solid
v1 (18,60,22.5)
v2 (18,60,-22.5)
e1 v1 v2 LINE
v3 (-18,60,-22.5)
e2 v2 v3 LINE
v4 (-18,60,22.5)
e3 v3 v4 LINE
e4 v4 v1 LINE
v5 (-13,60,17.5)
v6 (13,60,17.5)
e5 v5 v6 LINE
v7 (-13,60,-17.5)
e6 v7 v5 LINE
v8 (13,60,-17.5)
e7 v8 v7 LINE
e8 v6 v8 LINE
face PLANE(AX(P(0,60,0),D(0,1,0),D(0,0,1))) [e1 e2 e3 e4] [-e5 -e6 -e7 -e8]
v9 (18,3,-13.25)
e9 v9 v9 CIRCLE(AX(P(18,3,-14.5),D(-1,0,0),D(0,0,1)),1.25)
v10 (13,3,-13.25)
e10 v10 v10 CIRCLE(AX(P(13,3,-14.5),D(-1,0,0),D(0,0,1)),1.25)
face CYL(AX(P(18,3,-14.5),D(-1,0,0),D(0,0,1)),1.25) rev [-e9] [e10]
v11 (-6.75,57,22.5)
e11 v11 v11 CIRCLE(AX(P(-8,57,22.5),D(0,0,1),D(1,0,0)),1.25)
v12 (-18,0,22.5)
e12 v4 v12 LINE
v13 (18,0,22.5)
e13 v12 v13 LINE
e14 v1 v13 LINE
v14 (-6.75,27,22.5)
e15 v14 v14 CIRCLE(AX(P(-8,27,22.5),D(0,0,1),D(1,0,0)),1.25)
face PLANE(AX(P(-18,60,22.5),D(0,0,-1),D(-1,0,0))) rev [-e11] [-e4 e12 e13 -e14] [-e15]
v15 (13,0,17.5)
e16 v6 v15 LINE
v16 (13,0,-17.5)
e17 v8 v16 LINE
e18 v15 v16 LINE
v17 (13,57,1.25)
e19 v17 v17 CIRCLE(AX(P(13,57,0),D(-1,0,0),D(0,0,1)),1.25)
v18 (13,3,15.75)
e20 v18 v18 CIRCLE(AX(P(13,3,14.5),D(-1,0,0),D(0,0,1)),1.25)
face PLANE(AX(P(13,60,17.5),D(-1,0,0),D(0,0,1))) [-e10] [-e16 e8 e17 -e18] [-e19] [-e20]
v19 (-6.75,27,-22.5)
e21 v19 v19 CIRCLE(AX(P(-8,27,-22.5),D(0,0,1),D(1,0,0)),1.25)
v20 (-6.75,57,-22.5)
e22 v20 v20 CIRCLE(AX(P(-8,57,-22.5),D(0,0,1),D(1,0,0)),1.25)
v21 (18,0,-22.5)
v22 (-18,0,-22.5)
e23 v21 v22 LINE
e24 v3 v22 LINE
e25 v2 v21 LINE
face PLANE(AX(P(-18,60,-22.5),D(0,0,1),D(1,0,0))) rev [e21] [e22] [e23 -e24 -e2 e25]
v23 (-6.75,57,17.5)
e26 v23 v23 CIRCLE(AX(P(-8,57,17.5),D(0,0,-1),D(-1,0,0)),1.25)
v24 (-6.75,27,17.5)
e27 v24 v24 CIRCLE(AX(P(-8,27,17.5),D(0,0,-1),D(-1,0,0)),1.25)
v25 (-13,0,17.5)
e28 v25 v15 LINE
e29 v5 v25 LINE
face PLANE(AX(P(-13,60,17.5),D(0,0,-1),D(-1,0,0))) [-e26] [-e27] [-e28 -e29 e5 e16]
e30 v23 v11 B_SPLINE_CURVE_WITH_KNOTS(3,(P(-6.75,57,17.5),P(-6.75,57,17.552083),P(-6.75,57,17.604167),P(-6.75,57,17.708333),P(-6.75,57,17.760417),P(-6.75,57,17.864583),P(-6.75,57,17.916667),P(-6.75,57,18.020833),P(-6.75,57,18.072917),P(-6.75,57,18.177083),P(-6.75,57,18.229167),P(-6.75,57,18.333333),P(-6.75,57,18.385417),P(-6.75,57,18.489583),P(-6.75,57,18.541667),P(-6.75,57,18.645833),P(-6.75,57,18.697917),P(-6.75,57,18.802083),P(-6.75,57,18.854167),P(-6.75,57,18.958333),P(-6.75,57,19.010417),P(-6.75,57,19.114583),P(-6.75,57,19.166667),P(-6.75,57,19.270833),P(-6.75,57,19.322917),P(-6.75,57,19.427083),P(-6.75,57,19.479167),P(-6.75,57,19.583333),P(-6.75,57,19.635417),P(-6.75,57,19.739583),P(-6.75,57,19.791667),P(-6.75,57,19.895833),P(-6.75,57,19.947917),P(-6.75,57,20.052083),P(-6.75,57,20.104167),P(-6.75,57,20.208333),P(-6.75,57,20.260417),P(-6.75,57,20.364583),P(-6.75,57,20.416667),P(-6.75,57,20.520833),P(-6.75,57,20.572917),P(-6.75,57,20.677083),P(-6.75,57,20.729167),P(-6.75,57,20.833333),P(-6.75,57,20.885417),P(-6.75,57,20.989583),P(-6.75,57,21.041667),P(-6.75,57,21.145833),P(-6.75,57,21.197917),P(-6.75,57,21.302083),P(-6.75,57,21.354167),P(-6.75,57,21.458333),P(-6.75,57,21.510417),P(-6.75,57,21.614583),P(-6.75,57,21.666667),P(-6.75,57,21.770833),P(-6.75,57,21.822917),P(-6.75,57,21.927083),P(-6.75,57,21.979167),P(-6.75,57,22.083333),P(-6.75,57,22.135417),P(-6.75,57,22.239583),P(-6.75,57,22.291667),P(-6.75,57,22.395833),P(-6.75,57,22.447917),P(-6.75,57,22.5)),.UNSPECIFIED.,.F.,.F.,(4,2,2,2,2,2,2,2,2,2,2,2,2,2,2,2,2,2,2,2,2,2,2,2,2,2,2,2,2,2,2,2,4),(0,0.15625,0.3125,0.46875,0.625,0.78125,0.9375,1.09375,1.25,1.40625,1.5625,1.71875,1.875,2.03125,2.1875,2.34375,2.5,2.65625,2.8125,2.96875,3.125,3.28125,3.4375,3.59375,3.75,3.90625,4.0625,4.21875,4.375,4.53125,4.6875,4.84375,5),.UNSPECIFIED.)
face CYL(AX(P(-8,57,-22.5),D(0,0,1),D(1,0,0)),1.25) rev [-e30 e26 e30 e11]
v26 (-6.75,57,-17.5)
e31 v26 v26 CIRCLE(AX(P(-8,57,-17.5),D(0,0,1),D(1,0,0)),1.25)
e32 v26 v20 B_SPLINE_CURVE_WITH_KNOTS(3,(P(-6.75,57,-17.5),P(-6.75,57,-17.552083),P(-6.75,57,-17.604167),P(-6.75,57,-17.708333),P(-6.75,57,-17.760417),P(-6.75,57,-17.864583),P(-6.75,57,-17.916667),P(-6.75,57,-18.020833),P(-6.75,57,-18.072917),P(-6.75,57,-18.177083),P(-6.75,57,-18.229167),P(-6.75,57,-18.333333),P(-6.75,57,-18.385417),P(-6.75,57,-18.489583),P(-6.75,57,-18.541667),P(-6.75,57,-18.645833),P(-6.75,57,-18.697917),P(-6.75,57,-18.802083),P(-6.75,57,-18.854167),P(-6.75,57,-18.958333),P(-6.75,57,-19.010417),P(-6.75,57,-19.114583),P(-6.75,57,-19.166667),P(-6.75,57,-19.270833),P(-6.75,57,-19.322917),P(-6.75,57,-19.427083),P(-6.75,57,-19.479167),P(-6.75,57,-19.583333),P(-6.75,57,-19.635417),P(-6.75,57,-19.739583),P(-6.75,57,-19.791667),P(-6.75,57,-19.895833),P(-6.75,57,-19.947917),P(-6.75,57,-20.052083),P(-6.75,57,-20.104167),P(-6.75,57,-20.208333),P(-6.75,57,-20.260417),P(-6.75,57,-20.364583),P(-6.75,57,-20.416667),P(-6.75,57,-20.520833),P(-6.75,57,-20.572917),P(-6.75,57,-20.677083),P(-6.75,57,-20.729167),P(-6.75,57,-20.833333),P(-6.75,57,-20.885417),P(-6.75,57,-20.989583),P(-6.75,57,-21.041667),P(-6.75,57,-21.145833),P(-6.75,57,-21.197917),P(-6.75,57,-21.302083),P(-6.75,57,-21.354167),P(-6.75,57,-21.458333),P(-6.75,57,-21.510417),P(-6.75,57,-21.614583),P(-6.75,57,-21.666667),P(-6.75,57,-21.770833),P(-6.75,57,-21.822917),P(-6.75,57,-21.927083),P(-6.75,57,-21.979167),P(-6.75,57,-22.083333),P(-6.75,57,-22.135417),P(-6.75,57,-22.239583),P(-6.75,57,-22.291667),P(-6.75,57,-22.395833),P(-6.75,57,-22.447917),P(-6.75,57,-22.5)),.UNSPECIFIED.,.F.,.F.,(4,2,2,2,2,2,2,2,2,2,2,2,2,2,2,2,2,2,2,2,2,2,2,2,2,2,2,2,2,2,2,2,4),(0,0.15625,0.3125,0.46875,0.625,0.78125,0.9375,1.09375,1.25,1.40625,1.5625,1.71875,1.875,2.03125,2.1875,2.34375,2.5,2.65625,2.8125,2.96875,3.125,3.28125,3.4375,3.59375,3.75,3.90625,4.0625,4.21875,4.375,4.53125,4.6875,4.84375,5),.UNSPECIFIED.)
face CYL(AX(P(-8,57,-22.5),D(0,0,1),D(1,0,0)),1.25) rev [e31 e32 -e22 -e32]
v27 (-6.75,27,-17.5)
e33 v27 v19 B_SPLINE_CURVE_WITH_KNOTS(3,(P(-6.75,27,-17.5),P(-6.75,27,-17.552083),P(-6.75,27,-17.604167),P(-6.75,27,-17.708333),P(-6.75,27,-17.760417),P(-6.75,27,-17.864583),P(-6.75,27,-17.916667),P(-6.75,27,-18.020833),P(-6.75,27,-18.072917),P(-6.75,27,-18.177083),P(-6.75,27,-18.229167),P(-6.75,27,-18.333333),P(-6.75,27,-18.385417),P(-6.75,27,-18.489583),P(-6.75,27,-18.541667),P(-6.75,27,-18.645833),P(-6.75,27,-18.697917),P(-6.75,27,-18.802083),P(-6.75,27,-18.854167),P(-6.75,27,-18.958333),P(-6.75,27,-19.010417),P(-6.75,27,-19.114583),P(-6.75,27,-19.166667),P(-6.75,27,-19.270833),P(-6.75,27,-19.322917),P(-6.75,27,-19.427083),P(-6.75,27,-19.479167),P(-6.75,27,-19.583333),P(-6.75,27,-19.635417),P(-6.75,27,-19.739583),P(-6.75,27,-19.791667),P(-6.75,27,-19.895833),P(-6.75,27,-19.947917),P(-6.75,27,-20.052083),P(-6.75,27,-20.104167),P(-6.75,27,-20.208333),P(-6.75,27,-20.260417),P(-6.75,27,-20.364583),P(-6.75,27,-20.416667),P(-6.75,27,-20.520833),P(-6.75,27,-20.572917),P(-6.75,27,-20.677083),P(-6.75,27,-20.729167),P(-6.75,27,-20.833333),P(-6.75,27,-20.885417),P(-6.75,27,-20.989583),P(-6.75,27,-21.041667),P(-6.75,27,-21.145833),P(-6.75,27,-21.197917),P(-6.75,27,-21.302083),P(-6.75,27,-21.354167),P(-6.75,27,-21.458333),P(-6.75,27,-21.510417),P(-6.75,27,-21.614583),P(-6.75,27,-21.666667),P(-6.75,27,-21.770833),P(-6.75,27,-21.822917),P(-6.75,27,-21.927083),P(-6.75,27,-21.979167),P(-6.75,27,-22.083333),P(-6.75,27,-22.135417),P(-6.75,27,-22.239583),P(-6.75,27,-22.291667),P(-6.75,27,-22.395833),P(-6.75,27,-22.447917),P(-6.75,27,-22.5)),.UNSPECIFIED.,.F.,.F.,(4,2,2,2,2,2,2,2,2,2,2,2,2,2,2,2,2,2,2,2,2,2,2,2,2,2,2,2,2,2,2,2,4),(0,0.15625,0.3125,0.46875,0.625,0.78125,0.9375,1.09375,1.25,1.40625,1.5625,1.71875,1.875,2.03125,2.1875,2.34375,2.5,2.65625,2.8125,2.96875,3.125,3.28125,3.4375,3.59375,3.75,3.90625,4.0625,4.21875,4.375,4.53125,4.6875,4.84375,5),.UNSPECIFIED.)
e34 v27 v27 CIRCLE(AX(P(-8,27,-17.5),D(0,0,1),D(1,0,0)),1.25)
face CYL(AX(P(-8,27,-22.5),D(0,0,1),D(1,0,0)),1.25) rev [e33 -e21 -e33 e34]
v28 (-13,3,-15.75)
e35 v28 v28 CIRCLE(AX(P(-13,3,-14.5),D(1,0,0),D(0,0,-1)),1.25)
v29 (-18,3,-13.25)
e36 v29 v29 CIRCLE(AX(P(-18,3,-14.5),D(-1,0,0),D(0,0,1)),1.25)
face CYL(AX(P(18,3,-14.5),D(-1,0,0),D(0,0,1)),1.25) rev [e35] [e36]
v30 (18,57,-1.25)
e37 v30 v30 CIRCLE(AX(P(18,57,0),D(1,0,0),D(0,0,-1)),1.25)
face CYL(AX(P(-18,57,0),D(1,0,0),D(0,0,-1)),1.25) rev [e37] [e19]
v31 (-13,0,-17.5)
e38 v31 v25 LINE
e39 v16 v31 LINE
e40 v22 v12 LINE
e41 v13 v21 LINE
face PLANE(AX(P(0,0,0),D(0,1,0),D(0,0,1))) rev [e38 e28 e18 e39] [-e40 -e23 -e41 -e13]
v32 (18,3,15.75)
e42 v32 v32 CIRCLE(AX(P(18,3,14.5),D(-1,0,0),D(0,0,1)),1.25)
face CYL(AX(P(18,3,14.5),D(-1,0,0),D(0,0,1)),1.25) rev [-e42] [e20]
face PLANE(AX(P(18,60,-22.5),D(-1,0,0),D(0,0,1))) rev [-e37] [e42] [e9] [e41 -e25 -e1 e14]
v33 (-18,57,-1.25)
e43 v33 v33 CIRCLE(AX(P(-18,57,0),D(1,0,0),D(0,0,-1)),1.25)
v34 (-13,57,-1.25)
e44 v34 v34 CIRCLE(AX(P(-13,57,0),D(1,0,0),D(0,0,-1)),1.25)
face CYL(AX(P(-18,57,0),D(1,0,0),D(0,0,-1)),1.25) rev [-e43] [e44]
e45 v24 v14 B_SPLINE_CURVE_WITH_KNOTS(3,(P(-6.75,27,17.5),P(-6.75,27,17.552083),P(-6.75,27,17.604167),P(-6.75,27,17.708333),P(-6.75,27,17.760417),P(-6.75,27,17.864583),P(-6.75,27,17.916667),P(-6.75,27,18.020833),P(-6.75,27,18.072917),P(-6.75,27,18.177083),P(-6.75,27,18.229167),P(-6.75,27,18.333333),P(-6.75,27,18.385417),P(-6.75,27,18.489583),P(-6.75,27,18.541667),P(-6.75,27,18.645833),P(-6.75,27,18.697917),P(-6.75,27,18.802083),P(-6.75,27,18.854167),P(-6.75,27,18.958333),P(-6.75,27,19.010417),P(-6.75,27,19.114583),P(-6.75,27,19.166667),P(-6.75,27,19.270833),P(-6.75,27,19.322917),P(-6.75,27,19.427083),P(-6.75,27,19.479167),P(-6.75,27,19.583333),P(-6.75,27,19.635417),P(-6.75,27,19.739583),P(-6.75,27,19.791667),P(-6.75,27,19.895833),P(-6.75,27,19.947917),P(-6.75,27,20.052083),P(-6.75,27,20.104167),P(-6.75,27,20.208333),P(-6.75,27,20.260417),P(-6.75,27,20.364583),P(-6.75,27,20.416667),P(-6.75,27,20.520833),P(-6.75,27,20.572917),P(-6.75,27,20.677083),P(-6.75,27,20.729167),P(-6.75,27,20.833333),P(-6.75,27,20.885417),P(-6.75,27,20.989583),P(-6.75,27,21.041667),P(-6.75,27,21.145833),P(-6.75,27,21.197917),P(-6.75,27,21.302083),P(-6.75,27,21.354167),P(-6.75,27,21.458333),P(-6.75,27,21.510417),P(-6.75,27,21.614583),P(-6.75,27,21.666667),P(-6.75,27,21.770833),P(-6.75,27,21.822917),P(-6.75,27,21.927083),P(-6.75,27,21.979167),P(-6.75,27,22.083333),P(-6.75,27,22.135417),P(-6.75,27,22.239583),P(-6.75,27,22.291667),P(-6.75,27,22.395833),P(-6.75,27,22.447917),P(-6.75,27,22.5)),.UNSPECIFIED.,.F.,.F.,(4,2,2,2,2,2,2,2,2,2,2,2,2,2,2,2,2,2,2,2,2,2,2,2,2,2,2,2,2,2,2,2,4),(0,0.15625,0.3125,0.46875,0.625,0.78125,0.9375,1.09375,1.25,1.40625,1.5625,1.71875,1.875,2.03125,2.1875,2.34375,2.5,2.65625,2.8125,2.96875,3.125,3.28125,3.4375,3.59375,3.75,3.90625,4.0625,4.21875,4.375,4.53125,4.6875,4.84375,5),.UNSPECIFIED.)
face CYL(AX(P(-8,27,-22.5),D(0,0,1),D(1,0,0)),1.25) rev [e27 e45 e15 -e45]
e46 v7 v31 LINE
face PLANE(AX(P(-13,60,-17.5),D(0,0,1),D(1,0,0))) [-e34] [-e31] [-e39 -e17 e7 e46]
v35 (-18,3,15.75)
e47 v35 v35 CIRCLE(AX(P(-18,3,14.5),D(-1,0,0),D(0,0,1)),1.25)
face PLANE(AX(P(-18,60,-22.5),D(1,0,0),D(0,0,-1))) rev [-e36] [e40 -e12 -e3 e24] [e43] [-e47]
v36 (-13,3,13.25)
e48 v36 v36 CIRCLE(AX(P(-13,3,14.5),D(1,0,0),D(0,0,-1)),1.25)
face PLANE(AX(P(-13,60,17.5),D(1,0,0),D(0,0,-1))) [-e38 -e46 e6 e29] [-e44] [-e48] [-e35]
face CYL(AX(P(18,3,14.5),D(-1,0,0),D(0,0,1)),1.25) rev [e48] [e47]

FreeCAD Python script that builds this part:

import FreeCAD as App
import Part
import Sketcher
from FreeCAD import Vector

doc = App.newDocument("Part")
body = doc.addObject("PartDesign::Body", "Body")

sketch1 = body.newObject("Sketcher::SketchObject", "Sketch")
sketch1.AttachmentSupport = (doc.getObject("XZ_Plane"), [""])
sketch1.MapMode = "FlatFace"
sketch1.addGeometry([
    Part.LineSegment(Vector(-18, -22, 0), Vector(-18, 22, 0)),
    Part.LineSegment(Vector(-18, 22, 0), Vector(18, 22, 0)),
    Part.LineSegment(Vector(18, 22, 0), Vector(18, -22, 0)),
    Part.LineSegment(Vector(18, -22, 0), Vector(-18, -22, 0)),
    Part.LineSegment(Vector(13, 18, 0), Vector(-13, 18, 0)),
    Part.LineSegment(Vector(-13, 18, 0), Vector(-13, -18, 0)),
    Part.LineSegment(Vector(-13, -18, 0), Vector(13, -18, 0)),
    Part.LineSegment(Vector(13, -18, 0), Vector(13, 18, 0)),
], False)
sketch1.addConstraint([
    Sketcher.Constraint("Coincident", 0, 2, 1, 1),
    Sketcher.Constraint("Coincident", 1, 2, 2, 1),
    Sketcher.Constraint("Coincident", 2, 2, 3, 1),
    Sketcher.Constraint("Coincident", 3, 2, 0, 1),
    Sketcher.Constraint("Coincident", 4, 2, 5, 1),
    Sketcher.Constraint("Coincident", 5, 2, 6, 1),
    Sketcher.Constraint("Coincident", 6, 2, 7, 1),
    Sketcher.Constraint("Coincident", 7, 2, 4, 1),
    Sketcher.Constraint("Vertical", 0),
    Sketcher.Constraint("Horizontal", 1),
    Sketcher.Constraint("Vertical", 2),
    Sketcher.Constraint("Horizontal", 3),
    Sketcher.Constraint("Horizontal", 4),
    Sketcher.Constraint("Vertical", 5),
    Sketcher.Constraint("Horizontal", 6),
    Sketcher.Constraint("Vertical", 7),
    Sketcher.Constraint("Symmetric", 0, 2, 2, 2, -1, 1),
    Sketcher.Constraint("Symmetric", 4, 2, 6, 2, -1, 1),
    Sketcher.Constraint("DistanceX", 1, 1, 1, 2, 36.0),
    Sketcher.Constraint("DistanceX", 4, 2, 4, 1, 26.0),
    Sketcher.Constraint("DistanceY", 0, 1, 0, 2, 45.0),
    Sketcher.Constraint("DistanceY", 5, 2, 5, 1, 35.0),
])
pad1 = body.newObject("PartDesign::Pad", "Pad")
pad1.Profile = sketch1
pad1.Length = 60
pad1.Reversed = True

sketch2 = body.newObject("Sketcher::SketchObject", "Sketch001")
sketch2.AttachmentSupport = (doc.getObject("YZ_Plane"), [""])
sketch2.MapMode = "FlatFace"
sketch2.AttachmentOffset = App.Placement(Vector(0, 0, -18), App.Rotation())
sketch2.addGeometry([
    Part.Circle(Vector(3, 14.5, 0), Vector(0, 0, 1), 1.2),
    Part.Circle(Vector(3, -14.5, 0), Vector(0, 0, 1), 1.2),
], False)
sketch2.addConstraint([
    Sketcher.Constraint("Equal", 0, 1),
    Sketcher.Constraint("Symmetric", 0, 3, 1, 3, -1),
    Sketcher.Constraint("Diameter", 0, 2.5),
    Sketcher.Constraint("DistanceX", -1, 1, 0, 3, 3.0),
    Sketcher.Constraint("DistanceY", 1, 3, 0, 3, 29.0),
])
pocket1 = body.newObject("PartDesign::Pocket", "Pocket")
pocket1.Profile = sketch2
pocket1.Type = "ThroughAll"
pocket1.Reversed = True

sketch3 = body.newObject("Sketcher::SketchObject", "Sketch002")
sketch3.AttachmentSupport = (doc.getObject("XY_Plane"), [""])
sketch3.MapMode = "FlatFace"
sketch3.AttachmentOffset = App.Placement(Vector(0, 0, 22.5), App.Rotation())
sketch3.addGeometry([
    Part.Circle(Vector(-8, 57, 0), Vector(0, 0, 1), 1.2),
    Part.Circle(Vector(-8, 27, 0), Vector(0, 0, 1), 1.2),
], False)
sketch3.addConstraint([
    Sketcher.Constraint("Equal", 0, 1),
    Sketcher.Constraint("Vertical", 0, 3, 1, 3),
    Sketcher.Constraint("Diameter", 0, 2.5),
    Sketcher.Constraint("DistanceX", 0, 3, -1, 1, 8.0),
    Sketcher.Constraint("DistanceY", -1, 1, 0, 3, 57.0),
    Sketcher.Constraint("DistanceY", -1, 1, 1, 3, 27.0),
])
pocket2 = body.newObject("PartDesign::Pocket", "Pocket001")
pocket2.Profile = sketch3
pocket2.Type = "ThroughAll"

sketch4 = body.newObject("Sketcher::SketchObject", "Sketch003")
sketch4.AttachmentSupport = (doc.getObject("YZ_Plane"), [""])
sketch4.MapMode = "FlatFace"
sketch4.AttachmentOffset = App.Placement(Vector(0, 0, 18), App.Rotation())
sketch4.addGeometry(Part.Circle(Vector(57, 0, 0), Vector(0, 0, 1), 1.2), False)
sketch4.addConstraint([
    Sketcher.Constraint("PointOnObject", 0, 3, -1),
    Sketcher.Constraint("Diameter", 0, 2.5),
    Sketcher.Constraint("DistanceX", -1, 1, 0, 3, 57.0),
])
pocket3 = body.newObject("PartDesign::Pocket", "Pocket002")
pocket3.Profile = sketch4
pocket3.Type = "ThroughAll"

doc.recompute()
